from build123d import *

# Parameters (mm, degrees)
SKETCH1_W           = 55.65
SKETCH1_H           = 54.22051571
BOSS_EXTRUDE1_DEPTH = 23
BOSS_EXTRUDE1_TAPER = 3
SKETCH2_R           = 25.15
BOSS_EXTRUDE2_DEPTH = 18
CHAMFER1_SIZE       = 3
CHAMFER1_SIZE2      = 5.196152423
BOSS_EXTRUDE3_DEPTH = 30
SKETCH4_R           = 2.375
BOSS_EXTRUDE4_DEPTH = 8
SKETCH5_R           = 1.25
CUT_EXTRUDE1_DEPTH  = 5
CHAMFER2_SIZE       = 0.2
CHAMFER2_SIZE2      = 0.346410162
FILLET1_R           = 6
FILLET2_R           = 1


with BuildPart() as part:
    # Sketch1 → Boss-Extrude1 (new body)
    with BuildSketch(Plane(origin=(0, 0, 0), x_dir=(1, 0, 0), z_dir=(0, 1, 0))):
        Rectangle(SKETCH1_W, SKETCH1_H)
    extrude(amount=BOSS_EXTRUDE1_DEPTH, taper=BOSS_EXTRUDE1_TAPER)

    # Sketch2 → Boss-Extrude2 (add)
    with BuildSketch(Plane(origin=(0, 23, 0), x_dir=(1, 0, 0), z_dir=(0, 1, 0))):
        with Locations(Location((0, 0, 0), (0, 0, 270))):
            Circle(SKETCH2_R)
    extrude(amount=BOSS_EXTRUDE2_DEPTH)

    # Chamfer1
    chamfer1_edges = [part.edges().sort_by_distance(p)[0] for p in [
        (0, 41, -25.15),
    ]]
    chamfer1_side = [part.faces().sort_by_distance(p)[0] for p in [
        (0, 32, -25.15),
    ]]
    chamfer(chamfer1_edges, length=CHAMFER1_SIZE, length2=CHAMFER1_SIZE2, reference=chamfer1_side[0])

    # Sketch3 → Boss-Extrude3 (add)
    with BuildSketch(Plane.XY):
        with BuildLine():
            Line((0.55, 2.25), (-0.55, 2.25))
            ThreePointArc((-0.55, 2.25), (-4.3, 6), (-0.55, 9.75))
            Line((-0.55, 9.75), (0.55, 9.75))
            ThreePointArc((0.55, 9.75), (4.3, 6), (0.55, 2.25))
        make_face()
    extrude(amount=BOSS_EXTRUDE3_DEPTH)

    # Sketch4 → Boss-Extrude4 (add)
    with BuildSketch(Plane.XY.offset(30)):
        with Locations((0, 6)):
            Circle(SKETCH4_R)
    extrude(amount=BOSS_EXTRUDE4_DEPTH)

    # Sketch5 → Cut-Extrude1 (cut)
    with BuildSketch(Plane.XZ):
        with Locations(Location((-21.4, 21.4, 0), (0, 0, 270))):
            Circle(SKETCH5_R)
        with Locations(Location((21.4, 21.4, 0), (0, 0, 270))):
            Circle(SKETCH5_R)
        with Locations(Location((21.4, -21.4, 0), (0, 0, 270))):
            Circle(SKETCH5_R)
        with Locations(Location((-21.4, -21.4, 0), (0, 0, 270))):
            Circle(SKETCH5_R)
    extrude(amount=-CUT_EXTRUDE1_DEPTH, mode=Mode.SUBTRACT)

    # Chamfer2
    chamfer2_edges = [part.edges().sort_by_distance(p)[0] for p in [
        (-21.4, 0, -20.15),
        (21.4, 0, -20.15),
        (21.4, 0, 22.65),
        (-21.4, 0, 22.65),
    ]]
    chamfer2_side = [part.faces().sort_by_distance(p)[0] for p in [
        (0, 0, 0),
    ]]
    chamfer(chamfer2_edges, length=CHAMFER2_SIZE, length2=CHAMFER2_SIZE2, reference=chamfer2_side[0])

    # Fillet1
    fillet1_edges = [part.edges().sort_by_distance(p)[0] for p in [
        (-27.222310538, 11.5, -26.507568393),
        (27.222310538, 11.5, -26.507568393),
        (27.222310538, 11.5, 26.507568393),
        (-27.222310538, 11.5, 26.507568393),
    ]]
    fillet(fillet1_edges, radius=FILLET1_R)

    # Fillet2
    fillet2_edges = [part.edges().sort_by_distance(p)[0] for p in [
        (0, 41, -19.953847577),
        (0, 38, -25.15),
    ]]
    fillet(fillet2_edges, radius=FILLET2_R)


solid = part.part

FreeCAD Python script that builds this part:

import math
import FreeCAD as App
import Part
import Sketcher
from FreeCAD import Vector


def edges_at(feature, points):
    """Names of the edges that pass closest to the given points."""
    edges = feature.Shape.Edges
    near = lambda p: min(range(len(edges)), key=lambda i: edges[i].distToShape(Part.Vertex(*p))[0])
    return sorted({f"Edge{near(p) + 1}" for p in points})


def add_polygon(sketch, points):
    """Adds a closed chain of lines whose ends are joined by coincident constraints."""
    first, n = sketch.GeometryCount, len(points)
    for a, b in zip(points, points[1:] + points[:1]):
        sketch.addGeometry(Part.LineSegment(App.Vector(*a, 0), App.Vector(*b, 0)), False)
    for i in range(n):
        sketch.addConstraint(Sketcher.Constraint("Coincident", first + i, 2, first + (i + 1) % n, 1))

doc = App.newDocument("Part")
body = doc.addObject("PartDesign::Body", "Body")

sketch1 = doc.addObject("Sketcher::SketchObject", "Sketch")
body.addObject(sketch1)
sketch1.AttachmentSupport = (doc.XZ_Plane, [""])
sketch1.MapMode = "FlatFace"
add_polygon(sketch1, [(-28, -27), (-28, 27), (28, 27), (28, -27)])
sketch1.addConstraint([
    Sketcher.Constraint("Vertical", 0),
    Sketcher.Constraint("Horizontal", 1),
    Sketcher.Constraint("Vertical", 2),
    Sketcher.Constraint("Horizontal", 3),
    Sketcher.Constraint("Symmetric", 0, 2, 2, 2, -1, 1),
    Sketcher.Constraint("DistanceX", 1, 1, 1, 2, 55.65),
    Sketcher.Constraint("DistanceY", 0, 1, 0, 2, 54.220516),
])
pad1 = doc.addObject("PartDesign::Pad", "Pad")
body.addObject(pad1)
pad1.Profile = sketch1
pad1.Length = 23
pad1.Reversed = True
pad1.TaperAngle = -3

sketch2 = doc.addObject("Sketcher::SketchObject", "Sketch001")
body.addObject(sketch2)
sketch2.AttachmentSupport = (doc.XZ_Plane, [""])
sketch2.MapMode = "FlatFace"
sketch2.AttachmentOffset = App.Placement(Vector(0, 0, -23), App.Rotation())
sketch2.addGeometry(Part.Circle(Vector(0, 0, 0), Vector(0, 0, 1), 25), False)
sketch2.addConstraint([
    Sketcher.Constraint("Coincident", 0, 3, -1, 1),
    Sketcher.Constraint("Diameter", 0, 50.3),
])
pad2 = doc.addObject("PartDesign::Pad", "Pad001")
body.addObject(pad2)
pad2.Profile = sketch2
pad2.Length = 18
pad2.Reversed = True
doc.recompute()

chamfer = doc.addObject("PartDesign::Chamfer", "Chamfer")
body.addObject(chamfer)
chamfer.Base = (pad2, edges_at(pad2, [(0, 41, -25.15)]))
chamfer.ChamferType = "Two distances"
chamfer.Size = 3
chamfer.Size2 = 5.196152

sketch3 = doc.addObject("Sketcher::SketchObject", "Sketch002")
body.addObject(sketch3)
sketch3.AttachmentSupport = (doc.XY_Plane, [""])
sketch3.MapMode = "FlatFace"
sketch3.addGeometry([
    Part.LineSegment(Vector(-0.6, 2.2, 0), Vector(0.6, 2.2, 0)),
    Part.ArcOfCircle(Part.Circle(Vector(0.6, 6, 0), Vector(0, 0, 1), 3.8), math.radians(-90), math.radians(90)),
    Part.LineSegment(Vector(0.6, 9.8, 0), Vector(-0.6, 9.8, 0)),
    Part.ArcOfCircle(Part.Circle(Vector(-0.6, 6, 0), Vector(0, 0, 1), 3.8), math.radians(90), math.radians(270)),
], False)
sketch3.addConstraint([
    Sketcher.Constraint("Tangent", 0, 2, 1, 1),
    Sketcher.Constraint("Tangent", 1, 2, 2, 1),
    Sketcher.Constraint("Tangent", 2, 2, 3, 1),
    Sketcher.Constraint("Tangent", 3, 2, 0, 1),
    Sketcher.Constraint("Horizontal", 0),
    Sketcher.Constraint("Horizontal", 2),
    Sketcher.Constraint("Radius", 1, 3.75),
    Sketcher.Constraint("DistanceX", 0, 1, 0, 2, 1.1),
    Sketcher.Constraint("DistanceY", -1, 1, 1, 3, 6.0),
    Sketcher.Constraint("DistanceX", -1, 1, 1, 3, 0.55),
])
pad3 = doc.addObject("PartDesign::Pad", "Pad002")
body.addObject(pad3)
pad3.Profile = sketch3
pad3.Length = 30

sketch4 = doc.addObject("Sketcher::SketchObject", "Sketch003")
body.addObject(sketch4)
sketch4.AttachmentSupport = (doc.XY_Plane, [""])
sketch4.MapMode = "FlatFace"
sketch4.AttachmentOffset = App.Placement(Vector(0, 0, 30), App.Rotation())
sketch4.addGeometry(Part.Circle(Vector(0, 6, 0), Vector(0, 0, 1), 2.4), False)
sketch4.addConstraint([
    Sketcher.Constraint("PointOnObject", 0, 3, -2),
    Sketcher.Constraint("Diameter", 0, 4.75),
    Sketcher.Constraint("DistanceY", -1, 1, 0, 3, 6.0),
])
pad4 = doc.addObject("PartDesign::Pad", "Pad003")
body.addObject(pad4)
pad4.Profile = sketch4
pad4.Length = 8

sketch5 = doc.addObject("Sketcher::SketchObject", "Sketch004")
body.addObject(sketch5)
sketch5.AttachmentSupport = (doc.XZ_Plane, [""])
sketch5.MapMode = "FlatFace"
sketch5.addGeometry([
    Part.Circle(Vector(-21.4, 21.4, 0), Vector(0, 0, 1), 1.2),
    Part.Circle(Vector(21.4, 21.4, 0), Vector(0, 0, 1), 1.2),
    Part.Circle(Vector(21.4, -21.4, 0), Vector(0, 0, 1), 1.2),
    Part.Circle(Vector(-21.4, -21.4, 0), Vector(0, 0, 1), 1.2),
], False)
sketch5.addConstraint([
    Sketcher.Constraint("Equal", 0, 1),
    Sketcher.Constraint("Equal", 1, 2),
    Sketcher.Constraint("Equal", 2, 3),
    Sketcher.Constraint("Symmetric", 0, 3, 2, 3, -1, 1),
    Sketcher.Constraint("Symmetric", 1, 3, 3, 3, -1, 1),
    Sketcher.Constraint("Symmetric", 0, 3, 1, 3, -2),
    Sketcher.Constraint("Diameter", 0, 2.5),
    Sketcher.Constraint("DistanceX", 0, 3, -1, 1, 21.4),
    Sketcher.Constraint("DistanceY", -1, 1, 0, 3, 21.4),
])
pocket1 = doc.addObject("PartDesign::Pocket", "Pocket")
body.addObject(pocket1)
pocket1.Profile = sketch5
pocket1.Length = 5
doc.recompute()

chamfer2 = doc.addObject("PartDesign::Chamfer", "Chamfer001")
body.addObject(chamfer2)
chamfer2.Base = (pocket1, edges_at(pocket1, [
    (-21.4, 0, -20.15),
    (21.4, 0, -20.15),
    (21.4, 0, 22.65),
    (-21.4, 0, 22.65),
]))
chamfer2.ChamferType = "Two distances"
chamfer2.Size = 0.2
chamfer2.Size2 = 0.34641
doc.recompute()

fillet = doc.addObject("PartDesign::Fillet", "Fillet")
body.addObject(fillet)
fillet.Base = (chamfer2, edges_at(chamfer2, [
    (-27.222, 11.5, -26.508),
    (27.222, 11.5, -26.508),
    (27.222, 11.5, 26.508),
    (-27.222, 11.5, 26.508),
]))
fillet.Radius = 6
doc.recompute()

fillet2 = doc.addObject("PartDesign::Fillet", "Fillet001")
body.addObject(fillet2)
fillet2.Base = (fillet, edges_at(fillet, [(0, 41, -19.954), (0, 38, -25.15)]))
fillet2.Radius = 1

doc.recompute()
